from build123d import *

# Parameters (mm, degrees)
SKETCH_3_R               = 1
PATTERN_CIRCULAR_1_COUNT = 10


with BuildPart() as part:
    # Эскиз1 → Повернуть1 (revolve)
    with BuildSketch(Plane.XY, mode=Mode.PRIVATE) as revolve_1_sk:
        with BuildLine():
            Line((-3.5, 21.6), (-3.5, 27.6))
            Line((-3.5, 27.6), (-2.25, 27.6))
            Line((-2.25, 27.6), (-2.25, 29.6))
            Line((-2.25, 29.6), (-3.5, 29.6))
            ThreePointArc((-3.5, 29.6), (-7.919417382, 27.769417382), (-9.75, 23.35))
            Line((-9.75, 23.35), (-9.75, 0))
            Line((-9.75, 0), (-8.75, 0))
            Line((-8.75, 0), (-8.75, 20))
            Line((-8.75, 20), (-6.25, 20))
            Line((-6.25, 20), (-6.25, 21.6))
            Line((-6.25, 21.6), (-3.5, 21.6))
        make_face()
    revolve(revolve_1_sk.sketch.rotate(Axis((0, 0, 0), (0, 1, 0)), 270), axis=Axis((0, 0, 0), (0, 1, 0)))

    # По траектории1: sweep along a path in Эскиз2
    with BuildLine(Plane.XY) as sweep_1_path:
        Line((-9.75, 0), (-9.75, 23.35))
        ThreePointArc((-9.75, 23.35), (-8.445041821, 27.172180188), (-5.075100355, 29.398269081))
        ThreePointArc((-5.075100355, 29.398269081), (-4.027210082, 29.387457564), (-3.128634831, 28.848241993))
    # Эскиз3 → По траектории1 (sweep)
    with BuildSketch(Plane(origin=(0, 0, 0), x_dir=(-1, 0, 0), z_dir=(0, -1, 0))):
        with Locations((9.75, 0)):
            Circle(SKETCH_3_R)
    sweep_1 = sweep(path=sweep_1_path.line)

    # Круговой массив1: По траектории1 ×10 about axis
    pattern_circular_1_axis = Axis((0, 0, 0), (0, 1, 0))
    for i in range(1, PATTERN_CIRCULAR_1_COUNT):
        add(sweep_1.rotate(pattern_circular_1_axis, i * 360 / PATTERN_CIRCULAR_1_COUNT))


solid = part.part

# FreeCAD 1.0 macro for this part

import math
import FreeCAD as App
import Part
import Sketcher

V = App.Vector

doc = App.newDocument("Part")
params = doc.addObject("Spreadsheet::Sheet", "Params")
for row, (alias, value) in enumerate([
    ("sketch1_width", "1 mm"),
    ("sketch1_height", "6 mm"),
    ("sketch1_height2", "2 mm"),
    ("sketch1_height3", "20 mm"),
    ("sketch1_radius", "6.25 mm"),
    ("revolution_angle", "360 deg"),
    ("sketch2_diameter", "2 mm"),
    ("sketch3_radius", "2 mm"),
    ("sketch3_radius2", "6.25 mm"),
    ("sketch3_height", "23.35 mm"),
], start=1):
    params.set(f"A{row}", alias)
    params.set(f"B{row}", "=" + value)
    params.setAlias(f"B{row}", alias)

body = doc.addObject("PartDesign::Body", "Body")

sketch1 = body.newObject("Sketcher::SketchObject", "Sketch")
sketch1.AttachmentSupport = (doc.getObject("XY_Plane"), [""])
sketch1.MapMode = "FlatFace"
sketch1.addGeometry([
    Part.LineSegment(V(-3.5, 21.6, 0), V(-3.5, 27.6, 0)),
    Part.LineSegment(V(-3.5, 27.6, 0), V(-2.2, 27.6, 0)),
    Part.LineSegment(V(-2.2, 27.6, 0), V(-2.2, 29.6, 0)),
    Part.LineSegment(V(-2.2, 29.6, 0), V(-3.5, 29.6, 0)),
    Part.ArcOfCircle(Part.Circle(V(-3.5, 23.3, 0), V(0, 0, 1), 6.3), math.radians(90), math.radians(180)),
    Part.LineSegment(V(-9.8, 23.4, 0), V(-9.8, 0, 0)),
    Part.LineSegment(V(-9.8, 0, 0), V(-8.8, 0, 0)),
    Part.LineSegment(V(-8.8, 0, 0), V(-8.8, 20, 0)),
    Part.LineSegment(V(-8.8, 20, 0), V(-6.2, 20, 0)),
    Part.LineSegment(V(-6.2, 20, 0), V(-6.2, 21.6, 0)),
    Part.LineSegment(V(-6.2, 21.6, 0), V(-3.5, 21.6, 0)),
], False)
sketch1.addConstraint([
    Sketcher.Constraint("Coincident", 0, 2, 1, 1),
    Sketcher.Constraint("Coincident", 1, 2, 2, 1),
    Sketcher.Constraint("Coincident", 2, 2, 3, 1),
    Sketcher.Constraint("Tangent", 3, 2, 4, 1),
    Sketcher.Constraint("Tangent", 4, 2, 5, 1),
    Sketcher.Constraint("Coincident", 5, 2, 6, 1),
    Sketcher.Constraint("Coincident", 6, 2, 7, 1),
    Sketcher.Constraint("Coincident", 7, 2, 8, 1),
    Sketcher.Constraint("Coincident", 8, 2, 9, 1),
    Sketcher.Constraint("Coincident", 9, 2, 10, 1),
    Sketcher.Constraint("Coincident", 10, 2, 0, 1),
    Sketcher.Constraint("Vertical", 0),
    Sketcher.Constraint("Horizontal", 1),
    Sketcher.Constraint("Vertical", 2),
    Sketcher.Constraint("Horizontal", 3),
    Sketcher.Constraint("Vertical", 5),
    Sketcher.Constraint("Horizontal", 6),
    Sketcher.Constraint("Vertical", 7),
    Sketcher.Constraint("Horizontal", 8),
    Sketcher.Constraint("Vertical", 9),
    Sketcher.Constraint("Horizontal", 10),
    Sketcher.Constraint("PointOnObject", 5, 2, -1),
    Sketcher.Constraint("Vertical", 4, 3, 0, 2),
    Sketcher.Constraint("DistanceX", 6, 1, 6, 2, 1.0),
    Sketcher.Constraint("DistanceY", 0, 1, 0, 2, 6.0),
    Sketcher.Constraint("DistanceY", 2, 1, 2, 2, 2.0),
    Sketcher.Constraint("DistanceY", 7, 1, 7, 2, 20.0),
    Sketcher.Constraint("Radius", 4, 6.25),
    Sketcher.Constraint("DistanceX", 8, 1, 8, 2, 2.5),
    Sketcher.Constraint("DistanceY", 9, 1, 9, 2, 1.6),
    Sketcher.Constraint("DistanceX", 8, 2, 1, 2, 4.0),
    Sketcher.Constraint("DistanceX", 4, 3, -1, 1, 3.5),
])
sketch1.setExpression("Constraints[23]", "Params.sketch1_width")
sketch1.setExpression("Constraints[24]", "Params.sketch1_height")
sketch1.setExpression("Constraints[25]", "Params.sketch1_height2")
sketch1.setExpression("Constraints[26]", "Params.sketch1_height3")
sketch1.setExpression("Constraints[27]", "Params.sketch1_radius")
revolution = body.newObject("PartDesign::Revolution", "Revolution")
revolution.Profile = sketch1
revolution.ReferenceAxis = (sketch1, ["V_Axis"])
revolution.setExpression("Angle", "Params.revolution_angle")

sketch2 = body.newObject("Sketcher::SketchObject", "Sketch001")
sketch2.AttachmentSupport = (doc.getObject("XZ_Plane"), [""])
sketch2.MapMode = "FlatFace"
sketch2.addGeometry(Part.Circle(V(-9.8, 0, 0), V(0, 0, 1), 1), False)
sketch2.addConstraint([
    Sketcher.Constraint("PointOnObject", 0, 3, -1),
    Sketcher.Constraint("Diameter", 0, 2.0),
    Sketcher.Constraint("DistanceX", 0, 3, -1, 1, 9.75),
])
sketch2.setExpression("Constraints[1]", "Params.sketch2_diameter")

sketch3 = body.newObject("Sketcher::SketchObject", "Sketch002")
sketch3.AttachmentSupport = (doc.getObject("XY_Plane"), [""])
sketch3.MapMode = "FlatFace"
sketch3.addGeometry([
    Part.LineSegment(V(-9.8, 0, 0), V(-9.8, 23.4, 0)),
    Part.ArcOfCircle(Part.Circle(V(-3.5, 23.4, 0), V(0, 0, 1), 6.3), math.radians(105), math.radians(180)),
    Part.ArcOfCircle(Part.Circle(V(-4.6, 27.5, 0), V(0, 0, 1), 2), math.radians(44), math.radians(105)),
], False)
sketch3.addConstraint([
    Sketcher.Constraint("Tangent", 0, 2, 1, 2),
    Sketcher.Constraint("Tangent", 1, 1, 2, 2),
    Sketcher.Constraint("Vertical", 0),
    Sketcher.Constraint("PointOnObject", 0, 1, -1),
    Sketcher.Constraint("Radius", 2, 2.0),
    Sketcher.Constraint("Radius", 1, 6.25),
    Sketcher.Constraint("DistanceY", 0, 1, 0, 2, 23.35),
    Sketcher.Constraint("DistanceX", 1, 3, -1, 1, 3.5),
    Sketcher.Constraint("DistanceX", 1, 1, -1, 1, 5.0751),
    Sketcher.Constraint("DistanceY", -1, 1, 2, 1, 28.848242),
])
sketch3.setExpression("Constraints[4]", "Params.sketch3_radius")
sketch3.setExpression("Constraints[5]", "Params.sketch3_radius2")
sketch3.setExpression("Constraints[6]", "Params.sketch3_height")
doc.recompute()

additivepipe = body.newObject("PartDesign::AdditivePipe", "AdditivePipe")
additivepipe.Profile = sketch2
additivepipe.Spine = (sketch3, ["Edge1", "Edge2", "Edge3"])
doc.recompute()

polarpattern = body.newObject("PartDesign::PolarPattern", "PolarPattern")
polarpattern.Originals = [additivepipe]
polarpattern.Axis = (doc.getObject("Y_Axis"), [""])
polarpattern.Angle = 360
polarpattern.Occurrences = 10
body.Tip = polarpattern

doc.recompute()
